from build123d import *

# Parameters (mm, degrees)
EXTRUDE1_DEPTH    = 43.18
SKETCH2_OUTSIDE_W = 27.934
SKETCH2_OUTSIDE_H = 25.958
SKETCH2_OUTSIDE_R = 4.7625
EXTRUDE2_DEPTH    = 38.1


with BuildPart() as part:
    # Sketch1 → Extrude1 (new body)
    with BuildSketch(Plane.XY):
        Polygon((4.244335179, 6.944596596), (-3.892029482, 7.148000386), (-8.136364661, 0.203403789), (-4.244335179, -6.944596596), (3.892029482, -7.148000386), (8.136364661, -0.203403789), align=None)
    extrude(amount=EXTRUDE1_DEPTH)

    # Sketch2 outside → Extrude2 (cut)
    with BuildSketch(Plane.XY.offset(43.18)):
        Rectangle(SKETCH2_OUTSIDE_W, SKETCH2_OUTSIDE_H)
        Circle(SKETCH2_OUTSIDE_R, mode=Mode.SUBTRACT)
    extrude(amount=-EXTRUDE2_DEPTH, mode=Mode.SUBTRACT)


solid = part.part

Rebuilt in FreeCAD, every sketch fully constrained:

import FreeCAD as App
import Part
import Sketcher

V = App.Vector
Q = App.Units.Quantity

doc = App.newDocument("Part")
body = doc.addObject("PartDesign::Body", "Body")

# Sketch on XY plane
sketch1 = body.newObject("Sketcher::SketchObject", "Sketch")
sketch1.AttachmentSupport = (doc.getObject("XY_Plane"), [""])
sketch1.MapMode = "FlatFace"
sketch1.addGeometry([
    Part.LineSegment(V(4, 7, 0), V(-4, 7, 0)),  # 0
    Part.LineSegment(V(-4, 7, 0), V(-8, 0, 0)),  # 1
    Part.LineSegment(V(-8, 0, 0), V(-4, -7, 0)),  # 2
    Part.LineSegment(V(-4, -7, 0), V(4, -7, 0)),  # 3
    Part.LineSegment(V(4, -7, 0), V(8, 0, 0)),  # 4
    Part.LineSegment(V(8, 0, 0), V(4, 7, 0)),  # 5
], False)
sketch1.addConstraint([
    Sketcher.Constraint("Coincident", 0, 2, 1, 1),
    Sketcher.Constraint("Coincident", 1, 2, 2, 1),
    Sketcher.Constraint("Coincident", 2, 2, 3, 1),
    Sketcher.Constraint("Coincident", 3, 2, 4, 1),
    Sketcher.Constraint("Coincident", 4, 2, 5, 1),
    Sketcher.Constraint("Coincident", 5, 2, 0, 1),
    Sketcher.Constraint("Symmetric", 0, 2, 3, 2, -1, 1),
    Sketcher.Constraint("Symmetric", 1, 2, 4, 2, -1, 1),
    Sketcher.Constraint("Symmetric", 2, 2, 5, 2, -1, 1),
    Sketcher.Constraint("Equal", 0, 1),
    Sketcher.Constraint("Equal", 1, 2),
    Sketcher.Constraint("DistanceX", 2, 2, -1, 1, Q("0.1670998 in")),
    Sketcher.Constraint("DistanceX", 1, 2, 0, 2, Q("0.1670998 in")),
    Sketcher.Constraint("DistanceY", -1, 1, 0, 2, 7.148),
    Sketcher.Constraint("DistanceY", 2, 2, 1, 2, 7.148),
])
pad1 = body.newObject("PartDesign::Pad", "Pad")
pad1.Profile = sketch1
pad1.Length = Q("1.7 in")

# Sketch on XY plane
sketch2 = body.newObject("Sketcher::SketchObject", "Sketch001")
sketch2.AttachmentSupport = (doc.getObject("XY_Plane"), [""])
sketch2.MapMode = "FlatFace"
sketch2.AttachmentOffset = App.Placement(V(0, 0, 1.7 * 25.4), App.Rotation())
sketch2.addGeometry([
    Part.LineSegment(V(-14, 13, 0), V(-14, -13, 0)),  # 0
    Part.LineSegment(V(-14, -13, 0), V(14, -13, 0)),  # 1
    Part.LineSegment(V(14, -13, 0), V(14, 13, 0)),  # 2
    Part.LineSegment(V(14, 13, 0), V(-14, 13, 0)),  # 3
    Part.Circle(V(0, 0, 0), V(0, 0, 1), 4.8),  # 4
], False)
sketch2.addConstraint([
    Sketcher.Constraint("Coincident", 0, 2, 1, 1),
    Sketcher.Constraint("Coincident", 1, 2, 2, 1),
    Sketcher.Constraint("Coincident", 2, 2, 3, 1),
    Sketcher.Constraint("Coincident", 3, 2, 0, 1),
    Sketcher.Constraint("Vertical", 0),
    Sketcher.Constraint("Horizontal", 1),
    Sketcher.Constraint("Vertical", 2),
    Sketcher.Constraint("Horizontal", 3),
    Sketcher.Constraint("Coincident", 4, 3, -1, 1),
    Sketcher.Constraint("Symmetric", 0, 2, 2, 2, -1, 1),
    Sketcher.Constraint("Diameter", 4, Q("0.375 in")),
    Sketcher.Constraint("DistanceX", 1, 1, 1, 2, 27.934),
    Sketcher.Constraint("DistanceY", 0, 2, 0, 1, 25.958),
])
pocket1 = body.newObject("PartDesign::Pocket", "Pocket")
pocket1.Profile = sketch2
pocket1.Length = Q("1.5 in")

doc.recompute()
